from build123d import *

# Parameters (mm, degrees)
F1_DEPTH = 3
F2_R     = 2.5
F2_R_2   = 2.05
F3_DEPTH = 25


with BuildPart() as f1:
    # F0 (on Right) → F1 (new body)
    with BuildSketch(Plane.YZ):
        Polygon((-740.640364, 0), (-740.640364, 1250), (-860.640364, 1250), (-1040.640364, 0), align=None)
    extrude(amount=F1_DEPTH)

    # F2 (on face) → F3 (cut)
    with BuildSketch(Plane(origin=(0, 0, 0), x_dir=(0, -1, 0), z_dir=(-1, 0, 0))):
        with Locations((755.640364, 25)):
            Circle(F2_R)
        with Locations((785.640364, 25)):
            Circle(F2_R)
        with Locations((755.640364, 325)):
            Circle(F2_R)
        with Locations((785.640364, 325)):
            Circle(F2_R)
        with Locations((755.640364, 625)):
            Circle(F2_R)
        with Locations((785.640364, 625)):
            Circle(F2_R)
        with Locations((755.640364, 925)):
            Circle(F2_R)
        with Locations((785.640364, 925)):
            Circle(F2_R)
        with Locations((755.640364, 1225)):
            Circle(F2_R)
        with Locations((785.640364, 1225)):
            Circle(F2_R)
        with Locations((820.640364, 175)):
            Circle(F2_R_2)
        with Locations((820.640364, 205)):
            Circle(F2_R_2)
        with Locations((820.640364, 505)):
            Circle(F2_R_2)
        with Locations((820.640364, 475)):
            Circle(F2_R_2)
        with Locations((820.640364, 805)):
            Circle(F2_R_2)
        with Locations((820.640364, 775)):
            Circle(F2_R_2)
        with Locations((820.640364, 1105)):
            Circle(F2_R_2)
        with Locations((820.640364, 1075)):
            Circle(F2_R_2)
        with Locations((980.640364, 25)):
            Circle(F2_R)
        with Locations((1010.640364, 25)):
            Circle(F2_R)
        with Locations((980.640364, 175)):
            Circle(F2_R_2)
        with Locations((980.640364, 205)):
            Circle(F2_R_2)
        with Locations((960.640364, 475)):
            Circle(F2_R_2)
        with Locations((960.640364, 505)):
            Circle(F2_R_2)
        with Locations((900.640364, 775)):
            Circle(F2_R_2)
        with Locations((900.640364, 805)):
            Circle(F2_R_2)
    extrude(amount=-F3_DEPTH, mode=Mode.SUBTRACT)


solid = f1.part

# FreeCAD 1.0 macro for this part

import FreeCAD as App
import Part
import Sketcher

V = App.Vector


def add_polygon(sketch, points):
    """Adds a closed chain of lines whose ends are joined by coincident constraints."""
    first, n = sketch.GeometryCount, len(points)
    for a, b in zip(points, points[1:] + points[:1]):
        sketch.addGeometry(Part.LineSegment(App.Vector(*a, 0), App.Vector(*b, 0)), False)
    for i in range(n):
        sketch.addConstraint(Sketcher.Constraint("Coincident", first + i, 2, first + (i + 1) % n, 1))

doc = App.newDocument("Part")
body = doc.addObject("PartDesign::Body", "Body")

sketch1 = body.newObject("Sketcher::SketchObject", "Sketch")
sketch1.AttachmentSupport = (doc.getObject("YZ_Plane"), [""])
sketch1.MapMode = "FlatFace"
add_polygon(sketch1, [(-741, 0), (-741, 1250), (-861, 1250), (-1041, 0)])
sketch1.addConstraint([
    Sketcher.Constraint("Vertical", 0),
    Sketcher.Constraint("Horizontal", 1),
    Sketcher.Constraint("Horizontal", 3),
    Sketcher.Constraint("PointOnObject", 2, 2, -1),
    Sketcher.Constraint("DistanceX", 1, 2, 1, 1, 120.0),
    Sketcher.Constraint("DistanceX", 3, 1, 3, 2, 300.0),
    Sketcher.Constraint("DistanceY", 0, 1, 0, 2, 1250.0),
    Sketcher.Constraint("DistanceX", 0, 2, -1, 1, 740.640364),
])
pad1 = body.newObject("PartDesign::Pad", "Pad")
pad1.Profile = sketch1
pad1.Length = 3

sketch2 = body.newObject("Sketcher::SketchObject", "Sketch001")
sketch2.AttachmentSupport = (doc.getObject("YZ_Plane"), [""])
sketch2.MapMode = "FlatFace"
sketch2.addGeometry([
    Part.Circle(V(-755.6, 25, 0), V(0, 0, 1), 2.5),
    Part.Circle(V(-785.6, 25, 0), V(0, 0, 1), 2.5),
    Part.Circle(V(-755.6, 325, 0), V(0, 0, 1), 2.5),
    Part.Circle(V(-785.6, 325, 0), V(0, 0, 1), 2.5),
    Part.Circle(V(-755.6, 625, 0), V(0, 0, 1), 2.5),
    Part.Circle(V(-785.6, 625, 0), V(0, 0, 1), 2.5),
    Part.Circle(V(-755.6, 925, 0), V(0, 0, 1), 2.5),
    Part.Circle(V(-785.6, 925, 0), V(0, 0, 1), 2.5),
    Part.Circle(V(-755.6, 1225, 0), V(0, 0, 1), 2.5),
    Part.Circle(V(-785.6, 1225, 0), V(0, 0, 1), 2.5),
    Part.Circle(V(-820.6, 175, 0), V(0, 0, 1), 2),
    Part.Circle(V(-820.6, 205, 0), V(0, 0, 1), 2),
    Part.Circle(V(-820.6, 505, 0), V(0, 0, 1), 2),
    Part.Circle(V(-820.6, 475, 0), V(0, 0, 1), 2),
    Part.Circle(V(-820.6, 805, 0), V(0, 0, 1), 2),
    Part.Circle(V(-820.6, 775, 0), V(0, 0, 1), 2),
    Part.Circle(V(-820.6, 1105, 0), V(0, 0, 1), 2),
    Part.Circle(V(-820.6, 1075, 0), V(0, 0, 1), 2),
    Part.Circle(V(-980.6, 25, 0), V(0, 0, 1), 2.5),
    Part.Circle(V(-1010.6, 25, 0), V(0, 0, 1), 2.5),
    Part.Circle(V(-980.6, 175, 0), V(0, 0, 1), 2),
    Part.Circle(V(-980.6, 205, 0), V(0, 0, 1), 2),
    Part.Circle(V(-960.6, 475, 0), V(0, 0, 1), 2),
    Part.Circle(V(-960.6, 505, 0), V(0, 0, 1), 2),
    Part.Circle(V(-900.6, 775, 0), V(0, 0, 1), 2),
    Part.Circle(V(-900.6, 805, 0), V(0, 0, 1), 2),
], False)
sketch2.addConstraint([
    Sketcher.Constraint("Equal", 0, 1),
    Sketcher.Constraint("Equal", 1, 2),
    Sketcher.Constraint("Equal", 2, 3),
    Sketcher.Constraint("Equal", 3, 4),
    Sketcher.Constraint("Equal", 4, 5),
    Sketcher.Constraint("Equal", 5, 6),
    Sketcher.Constraint("Equal", 6, 7),
    Sketcher.Constraint("Equal", 7, 8),
    Sketcher.Constraint("Equal", 8, 9),
    Sketcher.Constraint("Equal", 10, 11),
    Sketcher.Constraint("Equal", 11, 12),
    Sketcher.Constraint("Equal", 12, 13),
    Sketcher.Constraint("Equal", 13, 14),
    Sketcher.Constraint("Equal", 14, 15),
    Sketcher.Constraint("Equal", 15, 16),
    Sketcher.Constraint("Equal", 16, 17),
    Sketcher.Constraint("Equal", 9, 18),
    Sketcher.Constraint("Equal", 18, 19),
    Sketcher.Constraint("Equal", 17, 20),
    Sketcher.Constraint("Equal", 20, 21),
    Sketcher.Constraint("Equal", 21, 22),
    Sketcher.Constraint("Equal", 22, 23),
    Sketcher.Constraint("Equal", 23, 24),
    Sketcher.Constraint("Equal", 24, 25),
    Sketcher.Constraint("Horizontal", 0, 3, 1, 3),
    Sketcher.Constraint("Horizontal", 2, 3, 3, 3),
    Sketcher.Constraint("Horizontal", 4, 3, 5, 3),
    Sketcher.Constraint("Horizontal", 6, 3, 7, 3),
    Sketcher.Constraint("Horizontal", 8, 3, 9, 3),
    Sketcher.Constraint("Horizontal", 1, 3, 18, 3),
    Sketcher.Constraint("Horizontal", 18, 3, 19, 3),
    Sketcher.Constraint("Horizontal", 10, 3, 20, 3),
    Sketcher.Constraint("Horizontal", 11, 3, 21, 3),
    Sketcher.Constraint("Horizontal", 13, 3, 22, 3),
    Sketcher.Constraint("Horizontal", 12, 3, 23, 3),
    Sketcher.Constraint("Horizontal", 15, 3, 24, 3),
    Sketcher.Constraint("Horizontal", 14, 3, 25, 3),
    Sketcher.Constraint("Vertical", 0, 3, 2, 3),
    Sketcher.Constraint("Vertical", 1, 3, 3, 3),
    Sketcher.Constraint("Vertical", 2, 3, 4, 3),
    Sketcher.Constraint("Vertical", 3, 3, 5, 3),
    Sketcher.Constraint("Vertical", 4, 3, 6, 3),
    Sketcher.Constraint("Vertical", 5, 3, 7, 3),
    Sketcher.Constraint("Vertical", 6, 3, 8, 3),
    Sketcher.Constraint("Vertical", 7, 3, 9, 3),
    Sketcher.Constraint("Vertical", 10, 3, 11, 3),
    Sketcher.Constraint("Vertical", 11, 3, 12, 3),
    Sketcher.Constraint("Vertical", 12, 3, 13, 3),
    Sketcher.Constraint("Vertical", 13, 3, 14, 3),
    Sketcher.Constraint("Vertical", 14, 3, 15, 3),
    Sketcher.Constraint("Vertical", 15, 3, 16, 3),
    Sketcher.Constraint("Vertical", 16, 3, 17, 3),
    Sketcher.Constraint("Vertical", 18, 3, 20, 3),
    Sketcher.Constraint("Vertical", 20, 3, 21, 3),
    Sketcher.Constraint("Vertical", 22, 3, 23, 3),
    Sketcher.Constraint("Vertical", 24, 3, 25, 3),
    Sketcher.Constraint("Diameter", 0, 5.0),
    Sketcher.Constraint("Diameter", 10, 4.1),
    Sketcher.Constraint("DistanceY", -1, 1, 0, 3, 25.0),
    Sketcher.Constraint("DistanceY", -1, 1, 2, 3, 325.0),
    Sketcher.Constraint("DistanceY", -1, 1, 4, 3, 625.0),
    Sketcher.Constraint("DistanceY", -1, 1, 6, 3, 925.0),
    Sketcher.Constraint("DistanceY", -1, 1, 8, 3, 1225.0),
    Sketcher.Constraint("DistanceY", -1, 1, 10, 3, 175.0),
    Sketcher.Constraint("DistanceY", -1, 1, 11, 3, 205.0),
    Sketcher.Constraint("DistanceY", -1, 1, 12, 3, 505.0),
    Sketcher.Constraint("DistanceY", -1, 1, 13, 3, 475.0),
    Sketcher.Constraint("DistanceY", -1, 1, 14, 3, 805.0),
    Sketcher.Constraint("DistanceY", -1, 1, 15, 3, 775.0),
    Sketcher.Constraint("DistanceY", -1, 1, 16, 3, 1105.0),
    Sketcher.Constraint("DistanceY", -1, 1, 17, 3, 1075.0),
    Sketcher.Constraint("DistanceX", 1, 3, 0, 3, 30.0),
    Sketcher.Constraint("DistanceX", 10, 3, 1, 3, 35.0),
    Sketcher.Constraint("DistanceX", 18, 3, 1, 3, 195.0),
    Sketcher.Constraint("DistanceX", 19, 3, 18, 3, 30.0),
    Sketcher.Constraint("DistanceX", 22, 3, 13, 3, 140.0),
    Sketcher.Constraint("DistanceX", 24, 3, 15, 3, 80.0),
    Sketcher.Constraint("DistanceX", 0, 3, -1, 1, 755.640364),
])
pocket1 = body.newObject("PartDesign::Pocket", "Pocket")
pocket1.Profile = sketch2
pocket1.Length = 25
pocket1.Reversed = True

doc.recompute()
